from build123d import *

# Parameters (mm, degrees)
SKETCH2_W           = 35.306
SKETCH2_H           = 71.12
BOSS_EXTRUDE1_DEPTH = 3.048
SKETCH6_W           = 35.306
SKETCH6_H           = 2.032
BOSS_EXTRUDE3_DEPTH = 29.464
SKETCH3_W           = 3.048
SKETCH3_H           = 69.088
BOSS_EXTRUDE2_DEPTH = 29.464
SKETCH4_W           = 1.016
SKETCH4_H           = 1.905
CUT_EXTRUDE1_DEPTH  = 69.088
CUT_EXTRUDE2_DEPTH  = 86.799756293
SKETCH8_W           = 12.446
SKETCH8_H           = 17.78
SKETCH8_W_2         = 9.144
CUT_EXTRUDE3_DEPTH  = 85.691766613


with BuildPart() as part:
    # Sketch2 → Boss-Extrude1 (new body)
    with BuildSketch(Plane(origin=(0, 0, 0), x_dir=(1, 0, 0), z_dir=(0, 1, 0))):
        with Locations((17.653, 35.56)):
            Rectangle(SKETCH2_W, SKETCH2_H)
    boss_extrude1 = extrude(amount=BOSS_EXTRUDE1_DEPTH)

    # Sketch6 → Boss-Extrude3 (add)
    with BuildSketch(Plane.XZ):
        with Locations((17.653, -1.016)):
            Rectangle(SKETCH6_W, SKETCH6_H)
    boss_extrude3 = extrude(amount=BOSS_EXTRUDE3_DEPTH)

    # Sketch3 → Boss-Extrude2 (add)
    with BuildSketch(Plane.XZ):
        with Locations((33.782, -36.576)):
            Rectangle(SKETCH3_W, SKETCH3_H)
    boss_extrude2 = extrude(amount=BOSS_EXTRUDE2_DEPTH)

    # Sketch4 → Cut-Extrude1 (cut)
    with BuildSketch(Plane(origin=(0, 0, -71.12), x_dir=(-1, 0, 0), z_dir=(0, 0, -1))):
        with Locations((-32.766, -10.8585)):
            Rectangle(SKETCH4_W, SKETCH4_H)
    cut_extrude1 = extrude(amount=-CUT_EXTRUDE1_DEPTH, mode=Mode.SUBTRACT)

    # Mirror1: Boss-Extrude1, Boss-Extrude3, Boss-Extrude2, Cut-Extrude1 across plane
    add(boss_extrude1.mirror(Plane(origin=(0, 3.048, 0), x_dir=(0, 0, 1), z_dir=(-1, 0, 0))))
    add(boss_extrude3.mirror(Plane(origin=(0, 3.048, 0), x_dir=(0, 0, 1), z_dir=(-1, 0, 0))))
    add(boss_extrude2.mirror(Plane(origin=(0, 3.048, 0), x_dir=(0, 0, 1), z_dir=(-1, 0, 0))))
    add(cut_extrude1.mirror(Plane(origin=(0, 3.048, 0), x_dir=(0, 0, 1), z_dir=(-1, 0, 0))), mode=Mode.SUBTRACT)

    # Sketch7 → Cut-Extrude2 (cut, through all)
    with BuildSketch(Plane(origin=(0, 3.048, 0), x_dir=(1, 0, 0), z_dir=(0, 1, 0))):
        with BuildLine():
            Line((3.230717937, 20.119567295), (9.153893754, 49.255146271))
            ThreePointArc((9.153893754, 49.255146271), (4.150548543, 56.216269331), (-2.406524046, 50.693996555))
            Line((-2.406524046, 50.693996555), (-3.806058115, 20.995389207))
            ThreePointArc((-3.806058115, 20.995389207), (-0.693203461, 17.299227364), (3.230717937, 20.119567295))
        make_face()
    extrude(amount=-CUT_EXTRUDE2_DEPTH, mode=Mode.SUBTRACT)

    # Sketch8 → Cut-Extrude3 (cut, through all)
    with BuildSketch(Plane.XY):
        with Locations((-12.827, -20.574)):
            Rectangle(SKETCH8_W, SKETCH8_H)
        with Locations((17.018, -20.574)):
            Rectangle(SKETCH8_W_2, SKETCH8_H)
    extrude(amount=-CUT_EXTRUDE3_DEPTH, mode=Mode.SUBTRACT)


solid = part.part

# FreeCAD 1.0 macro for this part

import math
import FreeCAD as App
import Part
import Sketcher
from FreeCAD import Vector
Q = App.Units.Quantity


def add_polygon(sketch, points):
    """Adds a closed chain of lines whose ends are joined by coincident constraints."""
    first, n = sketch.GeometryCount, len(points)
    for a, b in zip(points, points[1:] + points[:1]):
        sketch.addGeometry(Part.LineSegment(App.Vector(*a, 0), App.Vector(*b, 0)), False)
    for i in range(n):
        sketch.addConstraint(Sketcher.Constraint("Coincident", first + i, 2, first + (i + 1) % n, 1))

doc = App.newDocument("Part")
body = doc.addObject("PartDesign::Body", "Body")

# Sketch on XZ plane
sketch1 = body.newObject("Sketcher::SketchObject", "Sketch")
sketch1.AttachmentSupport = (doc.getObject("XZ_Plane"), [""])
sketch1.MapMode = "FlatFace"
add_polygon(sketch1, [(0, -71.12), (0, 0), (35.306, 0), (35.306, -71.12)])  # lines 0-3
sketch1.addConstraint([
    Sketcher.Constraint("Vertical", 0),
    Sketcher.Constraint("Horizontal", 1),
    Sketcher.Constraint("Vertical", 2),
    Sketcher.Constraint("Horizontal", 3),
    Sketcher.Constraint("Coincident", 0, 2, -1, 1),
    Sketcher.Constraint("DistanceY", 0, 1, 0, 2, Q("2.8 in")),
    Sketcher.Constraint("DistanceX", 1, 1, 1, 2, Q("1.39 in")),
])
pad1 = body.newObject("PartDesign::Pad", "Pad")
pad1.Profile = sketch1
pad1.Length = Q("0.12 in")
pad1.Reversed = True

# Sketch on XZ plane
sketch2 = body.newObject("Sketcher::SketchObject", "Sketch001")
sketch2.AttachmentSupport = (doc.getObject("XZ_Plane"), [""])
sketch2.MapMode = "FlatFace"
add_polygon(sketch2, [(0, 0), (0, -2.032), (35.306, -2.032), (35.306, 0)])  # lines 0-3
sketch2.addConstraint([
    Sketcher.Constraint("Vertical", 0),
    Sketcher.Constraint("Horizontal", 1),
    Sketcher.Constraint("Vertical", 2),
    Sketcher.Constraint("Horizontal", 3),
    Sketcher.Constraint("Coincident", 3, 2, -1, 1),
    Sketcher.Constraint("DistanceX", 1, 1, 1, 2, Q("1.39 in")),
    Sketcher.Constraint("DistanceY", 0, 2, 0, 1, Q("0.08 in")),
])
pad2 = body.newObject("PartDesign::Pad", "Pad001")
pad2.Profile = sketch2
pad2.Length = Q("1.16 in")

# Sketch on XZ plane
sketch3 = body.newObject("Sketcher::SketchObject", "Sketch002")
sketch3.AttachmentSupport = (doc.getObject("XZ_Plane"), [""])
sketch3.MapMode = "FlatFace"
add_polygon(sketch3, [(32.258, -2.032), (32.258, -71.12), (35.306, -71.12), (35.306, -2.032)])  # lines 0-3
sketch3.addConstraint([
    Sketcher.Constraint("Vertical", 0),
    Sketcher.Constraint("Horizontal", 1),
    Sketcher.Constraint("Vertical", 2),
    Sketcher.Constraint("Horizontal", 3),
    Sketcher.Constraint("DistanceX", 1, 1, 1, 2, Q("0.12 in")),
    Sketcher.Constraint("DistanceY", 0, 2, 0, 1, Q("2.72 in")),
    Sketcher.Constraint("DistanceY", 0, 2, -1, 1, Q("2.8 in")),
    Sketcher.Constraint("DistanceX", -1, 1, 0, 2, Q("1.27 in")),
])
pad3 = body.newObject("PartDesign::Pad", "Pad002")
pad3.Profile = sketch3
pad3.Length = Q("1.16 in")

# Sketch on XY plane
sketch4 = body.newObject("Sketcher::SketchObject", "Sketch003")
sketch4.AttachmentSupport = (doc.getObject("XY_Plane"), [""])
sketch4.MapMode = "FlatFace"
sketch4.AttachmentOffset = App.Placement(Vector(0, 0, -2.8 * 25.4), App.Rotation())
add_polygon(sketch4, [(33.274, -9.906), (33.274, -11.811), (32.258, -11.811), (32.258, -9.906)])  # lines 0-3
sketch4.addConstraint([
    Sketcher.Constraint("Vertical", 0),
    Sketcher.Constraint("Horizontal", 1),
    Sketcher.Constraint("Vertical", 2),
    Sketcher.Constraint("Horizontal", 3),
    Sketcher.Constraint("DistanceX", 1, 2, 1, 1, Q("0.04 in")),
    Sketcher.Constraint("DistanceY", 0, 2, 0, 1, Q("0.075 in")),
    Sketcher.Constraint("DistanceX", -1, 1, 0, 2, Q("1.31 in")),
    Sketcher.Constraint("DistanceY", 2, 2, -1, 1, Q("0.39 in")),
])
pocket1 = body.newObject("PartDesign::Pocket", "Pocket")
pocket1.Profile = sketch4
pocket1.Length = Q("2.72 in")
pocket1.Reversed = True
doc.recompute()

mirrored = body.newObject("PartDesign::Mirrored", "Mirrored")
mirrored.Originals = [pad1, pad2, pad3, pocket1]
mirrored.MirrorPlane = (doc.getObject("YZ_Plane"), [""])
body.Tip = mirrored

# Sketch on XZ plane
sketch5 = body.newObject("Sketcher::SketchObject", "Sketch004")
sketch5.AttachmentSupport = (doc.getObject("XZ_Plane"), [""])
sketch5.MapMode = "FlatFace"
sketch5.AttachmentOffset = App.Placement(Vector(0, 0, -0.12 * 25.4), App.Rotation())
sketch5.addGeometry([
    Part.LineSegment(Vector(3.230718, -20.119567, 0), Vector(9.153894, -49.255146, 0)),
    Part.ArcOfCircle(Part.Circle(Vector(3.429, -50.419, 0), Vector(0, 0, 1), 5.842), math.radians(-177.301957), math.radians(11.491455)),
    Part.LineSegment(Vector(-2.406524, -50.693997, 0), Vector(-3.806058, -20.995389, 0)),
    Part.ArcOfCircle(Part.Circle(Vector(-0.254, -20.828, 0), Vector(0, 0, 1), 3.556), math.radians(11.491455), math.radians(182.698043)),
], False)
sketch5.addConstraint([
    Sketcher.Constraint("Tangent", 0, 2, 1, 2),
    Sketcher.Constraint("Tangent", 1, 1, 2, 1),
    Sketcher.Constraint("Tangent", 2, 2, 3, 2),
    Sketcher.Constraint("Tangent", 3, 1, 0, 1),
    Sketcher.Constraint("Radius", 1, Q("0.23 in")),
    Sketcher.Constraint("Radius", 3, Q("0.14 in")),
    Sketcher.Constraint("DistanceX", 3, 3, -1, 1, Q("0.01 in")),
    Sketcher.Constraint("DistanceY", 3, 3, -1, 1, Q("0.82 in")),
    Sketcher.Constraint("DistanceX", -1, 1, 1, 3, Q("0.135 in")),
    Sketcher.Constraint("DistanceY", 1, 3, -1, 1, Q("1.985 in")),
])
pocket2 = body.newObject("PartDesign::Pocket", "Pocket001")
pocket2.Profile = sketch5
pocket2.Type = "ThroughAll"
pocket2.Reversed = True

# Sketch on XY plane
sketch6 = body.newObject("Sketcher::SketchObject", "Sketch005")
sketch6.AttachmentSupport = (doc.getObject("XY_Plane"), [""])
sketch6.MapMode = "FlatFace"
add_polygon(sketch6, [(-19.05, -11.684), (-19.05, -29.464), (-6.604, -29.464), (-6.604, -11.684)])  # lines 0-3
add_polygon(sketch6, [(12.446, -11.684), (12.446, -29.464), (21.59, -29.464), (21.59, -11.684)])  # lines 4-7
sketch6.addConstraint([
    Sketcher.Constraint("Vertical", 0),
    Sketcher.Constraint("Horizontal", 1),
    Sketcher.Constraint("Vertical", 2),
    Sketcher.Constraint("Horizontal", 3),
    Sketcher.Constraint("Vertical", 4),
    Sketcher.Constraint("Horizontal", 5),
    Sketcher.Constraint("Vertical", 6),
    Sketcher.Constraint("Horizontal", 7),
    Sketcher.Constraint("Horizontal", 1, 2, 4, 2),
    Sketcher.Constraint("Horizontal", 3, 2, 6, 2),
    Sketcher.Constraint("DistanceY", 0, 2, 0, 1, Q("0.7 in")),
    Sketcher.Constraint("DistanceX", 1, 1, 1, 2, Q("0.49 in")),
    Sketcher.Constraint("DistanceX", 5, 1, 5, 2, Q("0.36 in")),
    Sketcher.Constraint("DistanceX", 0, 2, 5, 2, Q("1.6 in")),
    Sketcher.Constraint("DistanceX", 0, 2, -1, 1, Q("0.75 in")),
    Sketcher.Constraint("DistanceY", 0, 2, -1, 1, Q("1.16 in")),
])
pocket3 = body.newObject("PartDesign::Pocket", "Pocket002")
pocket3.Profile = sketch6
pocket3.Type = "ThroughAll"

doc.recompute()
